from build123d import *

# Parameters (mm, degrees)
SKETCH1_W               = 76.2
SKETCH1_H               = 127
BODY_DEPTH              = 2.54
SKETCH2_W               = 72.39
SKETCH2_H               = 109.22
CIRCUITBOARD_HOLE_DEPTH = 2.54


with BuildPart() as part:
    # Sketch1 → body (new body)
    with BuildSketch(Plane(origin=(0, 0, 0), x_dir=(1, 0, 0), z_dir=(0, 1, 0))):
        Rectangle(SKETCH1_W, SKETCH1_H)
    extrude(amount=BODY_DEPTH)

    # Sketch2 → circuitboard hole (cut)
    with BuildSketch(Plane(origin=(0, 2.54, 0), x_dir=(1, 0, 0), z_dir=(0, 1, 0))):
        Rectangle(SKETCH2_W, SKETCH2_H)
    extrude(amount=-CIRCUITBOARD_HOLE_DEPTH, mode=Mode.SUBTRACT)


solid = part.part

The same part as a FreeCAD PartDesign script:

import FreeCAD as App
import Part
import Sketcher
Q = App.Units.Quantity

doc = App.newDocument("Part")
body = doc.addObject("PartDesign::Body", "Body")

# Sketch on XZ plane
sketch1 = body.newObject("Sketcher::SketchObject", "Sketch")
sketch1.AttachmentSupport = (doc.getObject("XZ_Plane"), [""])
sketch1.MapMode = "FlatFace"
sketch1.addGeometry([
    Part.LineSegment(App.Vector(-38, -64, 0), App.Vector(-38, 64, 0)),
    Part.LineSegment(App.Vector(-38, 64, 0), App.Vector(38, 64, 0)),
    Part.LineSegment(App.Vector(38, 64, 0), App.Vector(38, -64, 0)),
    Part.LineSegment(App.Vector(38, -64, 0), App.Vector(-38, -64, 0)),
], False)
sketch1.addConstraint([
    Sketcher.Constraint("Coincident", 0, 2, 1, 1),
    Sketcher.Constraint("Coincident", 1, 2, 2, 1),
    Sketcher.Constraint("Coincident", 2, 2, 3, 1),
    Sketcher.Constraint("Coincident", 3, 2, 0, 1),
    Sketcher.Constraint("Vertical", 0),
    Sketcher.Constraint("Horizontal", 1),
    Sketcher.Constraint("Vertical", 2),
    Sketcher.Constraint("Horizontal", 3),
    Sketcher.Constraint("Symmetric", 0, 2, 2, 2, -1, 1),
    Sketcher.Constraint("DistanceX", 1, 1, 1, 2, Q("3 in")),
    Sketcher.Constraint("DistanceY", 0, 1, 0, 2, Q("5 in")),
])
pad1 = body.newObject("PartDesign::Pad", "Pad")
pad1.Profile = sketch1
pad1.Length = Q("0.1 in")
pad1.Reversed = True

# Sketch on XZ plane
sketch2 = body.newObject("Sketcher::SketchObject", "Sketch001")
sketch2.AttachmentSupport = (doc.getObject("XZ_Plane"), [""])
sketch2.MapMode = "FlatFace"
sketch2.AttachmentOffset = App.Placement(App.Vector(0, 0, -0.1 * 25.4), App.Rotation())
sketch2.addGeometry([
    Part.LineSegment(App.Vector(-36, -55, 0), App.Vector(-36, 55, 0)),
    Part.LineSegment(App.Vector(-36, 55, 0), App.Vector(36, 55, 0)),
    Part.LineSegment(App.Vector(36, 55, 0), App.Vector(36, -55, 0)),
    Part.LineSegment(App.Vector(36, -55, 0), App.Vector(-36, -55, 0)),
], False)
sketch2.addConstraint([
    Sketcher.Constraint("Coincident", 0, 2, 1, 1),
    Sketcher.Constraint("Coincident", 1, 2, 2, 1),
    Sketcher.Constraint("Coincident", 2, 2, 3, 1),
    Sketcher.Constraint("Coincident", 3, 2, 0, 1),
    Sketcher.Constraint("Vertical", 0),
    Sketcher.Constraint("Horizontal", 1),
    Sketcher.Constraint("Vertical", 2),
    Sketcher.Constraint("Horizontal", 3),
    Sketcher.Constraint("Symmetric", 0, 2, 2, 2, -1, 1),
    Sketcher.Constraint("DistanceY", 0, 1, 0, 2, Q("4.3 in")),
    Sketcher.Constraint("DistanceX", 1, 1, 1, 2, Q("2.85 in")),
])
pocket1 = body.newObject("PartDesign::Pocket", "Pocket")
pocket1.Profile = sketch2
pocket1.Length = Q("0.1 in")
pocket1.Reversed = True

doc.recompute()
